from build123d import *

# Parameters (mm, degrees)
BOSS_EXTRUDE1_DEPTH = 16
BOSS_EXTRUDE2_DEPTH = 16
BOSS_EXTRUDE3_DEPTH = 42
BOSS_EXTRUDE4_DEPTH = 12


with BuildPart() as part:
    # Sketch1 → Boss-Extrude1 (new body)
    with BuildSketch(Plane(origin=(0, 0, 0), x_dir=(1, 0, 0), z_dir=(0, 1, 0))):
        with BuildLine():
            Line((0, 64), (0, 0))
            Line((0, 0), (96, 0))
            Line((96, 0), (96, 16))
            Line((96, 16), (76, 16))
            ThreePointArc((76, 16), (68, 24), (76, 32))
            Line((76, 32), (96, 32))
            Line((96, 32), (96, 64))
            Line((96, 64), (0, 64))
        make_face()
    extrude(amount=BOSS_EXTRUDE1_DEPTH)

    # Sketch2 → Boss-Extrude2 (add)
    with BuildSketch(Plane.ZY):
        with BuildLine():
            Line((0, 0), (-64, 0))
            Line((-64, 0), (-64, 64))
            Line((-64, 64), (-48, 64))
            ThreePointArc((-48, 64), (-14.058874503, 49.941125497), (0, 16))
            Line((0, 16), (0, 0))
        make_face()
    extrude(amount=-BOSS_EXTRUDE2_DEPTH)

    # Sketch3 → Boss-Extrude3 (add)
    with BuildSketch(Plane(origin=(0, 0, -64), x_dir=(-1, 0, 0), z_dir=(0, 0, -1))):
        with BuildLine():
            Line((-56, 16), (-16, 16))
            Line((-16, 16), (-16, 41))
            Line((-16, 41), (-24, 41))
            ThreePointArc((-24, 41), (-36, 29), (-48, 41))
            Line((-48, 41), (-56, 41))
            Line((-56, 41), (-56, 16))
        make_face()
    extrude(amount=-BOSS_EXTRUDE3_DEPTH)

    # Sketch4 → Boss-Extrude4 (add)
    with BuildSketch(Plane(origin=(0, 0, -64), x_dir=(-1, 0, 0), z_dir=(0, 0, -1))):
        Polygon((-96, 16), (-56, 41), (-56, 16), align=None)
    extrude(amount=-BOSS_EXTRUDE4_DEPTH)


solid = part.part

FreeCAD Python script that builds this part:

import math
import FreeCAD as App
import Part
import Sketcher
from FreeCAD import Vector
Q = App.Units.Quantity

doc = App.newDocument("Part")
body = doc.addObject("PartDesign::Body", "Body")

# Sketch on XZ plane
sketch1 = body.newObject("Sketcher::SketchObject", "Sketch")
sketch1.AttachmentSupport = (doc.getObject("XZ_Plane"), [""])
sketch1.MapMode = "FlatFace"
sketch1.addGeometry(Part.LineSegment(Vector(0, -64, 0), Vector(0, 0, 0)), False)
sketch1.addGeometry(Part.LineSegment(Vector(0, 0, 0), Vector(96, 0, 0)), False)
sketch1.addGeometry(Part.LineSegment(Vector(96, 0, 0), Vector(96, -16, 0)), False)
sketch1.addGeometry(Part.LineSegment(Vector(96, -16, 0), Vector(76, -16, 0)), False)
sketch1.addGeometry(Part.ArcOfCircle(Part.Circle(Vector(76, -24, 0), Vector(0, 0, 1), 8), math.radians(90), math.radians(270)), False)
sketch1.addGeometry(Part.LineSegment(Vector(76, -32, 0), Vector(96, -32, 0)), False)
sketch1.addGeometry(Part.LineSegment(Vector(96, -32, 0), Vector(96, -64, 0)), False)
sketch1.addGeometry(Part.LineSegment(Vector(96, -64, 0), Vector(0, -64, 0)), False)
sketch1.addConstraint(Sketcher.Constraint("Coincident", 0, 2, 1, 1))
sketch1.addConstraint(Sketcher.Constraint("Coincident", 1, 2, 2, 1))
sketch1.addConstraint(Sketcher.Constraint("Coincident", 2, 2, 3, 1))
sketch1.addConstraint(Sketcher.Constraint("Tangent", 3, 2, 4, 1))
sketch1.addConstraint(Sketcher.Constraint("Tangent", 4, 2, 5, 1))
sketch1.addConstraint(Sketcher.Constraint("Coincident", 5, 2, 6, 1))
sketch1.addConstraint(Sketcher.Constraint("Coincident", 6, 2, 7, 1))
sketch1.addConstraint(Sketcher.Constraint("Coincident", 7, 2, 0, 1))
sketch1.addConstraint(Sketcher.Constraint("Vertical", 0))
sketch1.addConstraint(Sketcher.Constraint("Horizontal", 1))
sketch1.addConstraint(Sketcher.Constraint("Vertical", 2))
sketch1.addConstraint(Sketcher.Constraint("Horizontal", 3))
sketch1.addConstraint(Sketcher.Constraint("Horizontal", 5))
sketch1.addConstraint(Sketcher.Constraint("Vertical", 6))
sketch1.addConstraint(Sketcher.Constraint("Horizontal", 7))
sketch1.addConstraint(Sketcher.Constraint("Coincident", 0, 2, -1, 1))
sketch1.addConstraint(Sketcher.Constraint("Vertical", 2, 2, 5, 2))
sketch1.addConstraint(Sketcher.Constraint("Radius", 4, Q("8 mm")))
sketch1.addConstraint(Sketcher.Constraint("DistanceX", 1, 1, 1, 2, Q("96 mm")))
sketch1.addConstraint(Sketcher.Constraint("DistanceX", 3, 2, 3, 1, Q("20 mm")))
sketch1.addConstraint(Sketcher.Constraint("DistanceY", 0, 1, 0, 2, Q("64 mm")))
sketch1.addConstraint(Sketcher.Constraint("DistanceY", 2, 2, 2, 1, Q("16 mm")))
pad1 = body.newObject("PartDesign::Pad", "Pad")
pad1.Profile = sketch1
pad1.Length = 16
pad1.Reversed = True

# Sketch on YZ plane
sketch2 = body.newObject("Sketcher::SketchObject", "Sketch001")
sketch2.AttachmentSupport = (doc.getObject("YZ_Plane"), [""])
sketch2.MapMode = "FlatFace"
sketch2.addGeometry(Part.LineSegment(Vector(0, -64, 0), Vector(0, 0, 0)), False)
sketch2.addGeometry(Part.LineSegment(Vector(0, 0, 0), Vector(16, 0, 0)), False)
sketch2.addGeometry(Part.ArcOfCircle(Part.Circle(Vector(16, -48, 0), Vector(0, 0, 1), 48), math.radians(0), math.radians(90)), False)
sketch2.addGeometry(Part.LineSegment(Vector(64, -48, 0), Vector(64, -64, 0)), False)
sketch2.addGeometry(Part.LineSegment(Vector(64, -64, 0), Vector(0, -64, 0)), False)
sketch2.addConstraint(Sketcher.Constraint("Coincident", 0, 2, 1, 1))
sketch2.addConstraint(Sketcher.Constraint("Tangent", 1, 2, 2, 2))
sketch2.addConstraint(Sketcher.Constraint("Tangent", 2, 1, 3, 1))
sketch2.addConstraint(Sketcher.Constraint("Coincident", 3, 2, 4, 1))
sketch2.addConstraint(Sketcher.Constraint("Coincident", 4, 2, 0, 1))
sketch2.addConstraint(Sketcher.Constraint("Vertical", 0))
sketch2.addConstraint(Sketcher.Constraint("Horizontal", 1))
sketch2.addConstraint(Sketcher.Constraint("Vertical", 3))
sketch2.addConstraint(Sketcher.Constraint("Horizontal", 4))
sketch2.addConstraint(Sketcher.Constraint("Coincident", 0, 2, -1, 1))
sketch2.addConstraint(Sketcher.Constraint("Equal", 4, 0))
sketch2.addConstraint(Sketcher.Constraint("Radius", 2, Q("48 mm")))
sketch2.addConstraint(Sketcher.Constraint("DistanceX", 1, 1, 1, 2, Q("16 mm")))
pad2 = body.newObject("PartDesign::Pad", "Pad001")
pad2.Profile = sketch2
pad2.Length = 16

# Sketch on XY plane
sketch3 = body.newObject("Sketcher::SketchObject", "Sketch002")
sketch3.AttachmentSupport = (doc.getObject("XY_Plane"), [""])
sketch3.MapMode = "FlatFace"
sketch3.AttachmentOffset = App.Placement(Vector(0, 0, -64), App.Rotation())
sketch3.addGeometry(Part.LineSegment(Vector(56, 16, 0), Vector(16, 16, 0)), False)
sketch3.addGeometry(Part.LineSegment(Vector(16, 16, 0), Vector(16, 41, 0)), False)
sketch3.addGeometry(Part.LineSegment(Vector(16, 41, 0), Vector(24, 41, 0)), False)
sketch3.addGeometry(Part.ArcOfCircle(Part.Circle(Vector(36, 41, 0), Vector(0, 0, 1), 12), math.radians(180), math.radians(360)), False)
sketch3.addGeometry(Part.LineSegment(Vector(48, 41, 0), Vector(56, 41, 0)), False)
sketch3.addGeometry(Part.LineSegment(Vector(56, 41, 0), Vector(56, 16, 0)), False)
sketch3.addConstraint(Sketcher.Constraint("Coincident", 0, 2, 1, 1))
sketch3.addConstraint(Sketcher.Constraint("Coincident", 1, 2, 2, 1))
sketch3.addConstraint(Sketcher.Constraint("Coincident", 2, 2, 3, 1))
sketch3.addConstraint(Sketcher.Constraint("Coincident", 3, 2, 4, 1))
sketch3.addConstraint(Sketcher.Constraint("Coincident", 4, 2, 5, 1))
sketch3.addConstraint(Sketcher.Constraint("Coincident", 5, 2, 0, 1))
sketch3.addConstraint(Sketcher.Constraint("Horizontal", 0))
sketch3.addConstraint(Sketcher.Constraint("Vertical", 1))
sketch3.addConstraint(Sketcher.Constraint("Horizontal", 2))
sketch3.addConstraint(Sketcher.Constraint("Horizontal", 4))
sketch3.addConstraint(Sketcher.Constraint("Vertical", 5))
sketch3.addConstraint(Sketcher.Constraint("Horizontal", 3, 3, 1, 2))
sketch3.addConstraint(Sketcher.Constraint("Horizontal", 2, 2, 3, 2))
sketch3.addConstraint(Sketcher.Constraint("Equal", 2, 4))
sketch3.addConstraint(Sketcher.Constraint("Radius", 3, Q("12 mm")))
sketch3.addConstraint(Sketcher.Constraint("DistanceX", 0, 2, 0, 1, Q("40 mm")))
sketch3.addConstraint(Sketcher.Constraint("DistanceY", 1, 1, 1, 2, Q("25 mm")))
sketch3.addConstraint(Sketcher.Constraint("DistanceX", -1, 1, 3, 3, Q("36 mm")))
sketch3.addConstraint(Sketcher.Constraint("DistanceY", -1, 1, 3, 3, Q("41 mm")))
pad3 = body.newObject("PartDesign::Pad", "Pad002")
pad3.Profile = sketch3
pad3.Length = 42

# Sketch on XY plane
sketch4 = body.newObject("Sketcher::SketchObject", "Sketch003")
sketch4.AttachmentSupport = (doc.getObject("XY_Plane"), [""])
sketch4.MapMode = "FlatFace"
sketch4.AttachmentOffset = App.Placement(Vector(0, 0, -64), App.Rotation())
sketch4.addGeometry(Part.LineSegment(Vector(56, 41, 0), Vector(96, 16, 0)), False)
sketch4.addGeometry(Part.LineSegment(Vector(96, 16, 0), Vector(56, 16, 0)), False)
sketch4.addGeometry(Part.LineSegment(Vector(56, 16, 0), Vector(56, 41, 0)), False)
sketch4.addConstraint(Sketcher.Constraint("Coincident", 0, 2, 1, 1))
sketch4.addConstraint(Sketcher.Constraint("Coincident", 1, 2, 2, 1))
sketch4.addConstraint(Sketcher.Constraint("Coincident", 2, 2, 0, 1))
sketch4.addConstraint(Sketcher.Constraint("Horizontal", 1))
sketch4.addConstraint(Sketcher.Constraint("Vertical", 2))
sketch4.addConstraint(Sketcher.Constraint("DistanceX", 1, 2, 1, 1, Q("40 mm")))
sketch4.addConstraint(Sketcher.Constraint("DistanceY", 2, 1, 2, 2, Q("25 mm")))
sketch4.addConstraint(Sketcher.Constraint("DistanceX", -1, 1, 0, 2, Q("96 mm")))
sketch4.addConstraint(Sketcher.Constraint("DistanceY", -1, 1, 0, 2, Q("16 mm")))
pad4 = body.newObject("PartDesign::Pad", "Pad003")
pad4.Profile = sketch4
pad4.Length = 12

doc.recompute()
